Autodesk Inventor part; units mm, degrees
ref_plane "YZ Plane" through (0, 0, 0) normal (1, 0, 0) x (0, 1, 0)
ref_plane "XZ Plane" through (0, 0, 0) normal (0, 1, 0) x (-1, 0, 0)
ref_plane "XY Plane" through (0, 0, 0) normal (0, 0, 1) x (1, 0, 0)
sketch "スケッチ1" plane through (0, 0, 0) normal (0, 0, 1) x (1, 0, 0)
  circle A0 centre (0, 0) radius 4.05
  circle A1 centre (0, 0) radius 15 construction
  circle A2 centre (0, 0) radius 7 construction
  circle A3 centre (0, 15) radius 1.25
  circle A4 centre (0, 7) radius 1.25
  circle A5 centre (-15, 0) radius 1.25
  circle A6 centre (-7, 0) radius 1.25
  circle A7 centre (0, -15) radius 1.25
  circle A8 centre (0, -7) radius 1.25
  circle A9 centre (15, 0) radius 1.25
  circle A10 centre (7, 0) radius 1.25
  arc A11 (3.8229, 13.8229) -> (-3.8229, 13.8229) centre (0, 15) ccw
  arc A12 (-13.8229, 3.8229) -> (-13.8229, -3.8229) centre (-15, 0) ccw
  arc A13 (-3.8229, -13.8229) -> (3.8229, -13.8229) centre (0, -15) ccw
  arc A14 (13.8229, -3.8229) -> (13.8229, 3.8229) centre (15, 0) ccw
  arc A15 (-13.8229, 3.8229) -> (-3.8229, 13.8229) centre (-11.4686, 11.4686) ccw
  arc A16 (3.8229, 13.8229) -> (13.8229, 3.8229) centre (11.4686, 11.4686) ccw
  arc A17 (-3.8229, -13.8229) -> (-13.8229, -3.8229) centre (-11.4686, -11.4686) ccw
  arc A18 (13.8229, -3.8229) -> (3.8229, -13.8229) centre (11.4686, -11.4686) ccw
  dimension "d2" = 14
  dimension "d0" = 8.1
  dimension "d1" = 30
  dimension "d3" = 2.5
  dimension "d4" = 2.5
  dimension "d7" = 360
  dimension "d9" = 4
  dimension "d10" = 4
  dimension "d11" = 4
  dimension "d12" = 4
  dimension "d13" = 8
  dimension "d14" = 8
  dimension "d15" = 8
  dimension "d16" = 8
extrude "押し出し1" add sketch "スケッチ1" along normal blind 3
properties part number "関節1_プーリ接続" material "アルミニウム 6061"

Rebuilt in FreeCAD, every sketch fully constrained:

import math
import FreeCAD as App
import Part
import Sketcher
Q = App.Units.Quantity

doc = App.newDocument("Part")
body = doc.addObject("PartDesign::Body", "Body")

sketch1 = body.newObject("Sketcher::SketchObject", "Sketch")
sketch1.AttachmentSupport = (doc.getObject("XY_Plane"), [""])
sketch1.MapMode = "FlatFace"
sketch1.addGeometry([
    Part.ArcOfCircle(Part.Circle(App.Vector(11.5, 11.5, 0), App.Vector(0, 0, 1), 8), math.radians(163), math.radians(287)),
    Part.ArcOfCircle(Part.Circle(App.Vector(0, 15, 0), App.Vector(0, 0, 1), 4), math.radians(-17), math.radians(197)),
    Part.ArcOfCircle(Part.Circle(App.Vector(-11.5, 11.5, 0), App.Vector(0, 0, 1), 8), math.radians(-107), math.radians(17)),
    Part.ArcOfCircle(Part.Circle(App.Vector(-15, 0, 0), App.Vector(0, 0, 1), 4), math.radians(73), math.radians(287)),
    Part.ArcOfCircle(Part.Circle(App.Vector(-11.5, -11.5, 0), App.Vector(0, 0, 1), 8), math.radians(-17), math.radians(107)),
    Part.ArcOfCircle(Part.Circle(App.Vector(0, -15, 0), App.Vector(0, 0, 1), 4), math.radians(163), math.radians(377)),
    Part.ArcOfCircle(Part.Circle(App.Vector(11.5, -11.5, 0), App.Vector(0, 0, 1), 8), math.radians(73), math.radians(197)),
    Part.ArcOfCircle(Part.Circle(App.Vector(15, 0, 0), App.Vector(0, 0, 1), 4), math.radians(-107), math.radians(107)),
    Part.Circle(App.Vector(0, -15, 0), App.Vector(0, 0, 1), 1.2),
    Part.Circle(App.Vector(-15, 0, 0), App.Vector(0, 0, 1), 1.2),
    Part.Circle(App.Vector(0, -7, 0), App.Vector(0, 0, 1), 1.2),
    Part.Circle(App.Vector(-7, 0, 0), App.Vector(0, 0, 1), 1.2),
    Part.Circle(App.Vector(0, 0, 0), App.Vector(0, 0, 1), 4),
    Part.Circle(App.Vector(7, 0, 0), App.Vector(0, 0, 1), 1.2),
    Part.Circle(App.Vector(15, 0, 0), App.Vector(0, 0, 1), 1.2),
    Part.Circle(App.Vector(0, 7, 0), App.Vector(0, 0, 1), 1.2),
    Part.Circle(App.Vector(0, 15, 0), App.Vector(0, 0, 1), 1.2),
], False)
sketch1.addConstraint([
    Sketcher.Constraint("Tangent", 0, 1, 1, 1),
    Sketcher.Constraint("Tangent", 1, 2, 2, 2),
    Sketcher.Constraint("Tangent", 2, 1, 3, 1),
    Sketcher.Constraint("Tangent", 3, 2, 4, 2),
    Sketcher.Constraint("Tangent", 4, 1, 5, 1),
    Sketcher.Constraint("Tangent", 5, 2, 6, 2),
    Sketcher.Constraint("Tangent", 6, 1, 7, 1),
    Sketcher.Constraint("Tangent", 7, 2, 0, 2),
    Sketcher.Constraint("Coincident", 12, 3, -1, 1),
    Sketcher.Constraint("Coincident", 8, 3, 5, 3),
    Sketcher.Constraint("Coincident", 9, 3, 3, 3),
    Sketcher.Constraint("Coincident", 14, 3, 7, 3),
    Sketcher.Constraint("Coincident", 16, 3, 1, 3),
    Sketcher.Constraint("Equal", 0, 2),
    Sketcher.Constraint("Equal", 1, 3),
    Sketcher.Constraint("Equal", 2, 4),
    Sketcher.Constraint("Equal", 3, 5),
    Sketcher.Constraint("Equal", 4, 6),
    Sketcher.Constraint("Equal", 5, 7),
    Sketcher.Constraint("Equal", 8, 9),
    Sketcher.Constraint("Equal", 9, 10),
    Sketcher.Constraint("Equal", 10, 11),
    Sketcher.Constraint("Equal", 11, 13),
    Sketcher.Constraint("Equal", 13, 14),
    Sketcher.Constraint("Equal", 14, 15),
    Sketcher.Constraint("Equal", 15, 16),
    Sketcher.Constraint("Symmetric", 0, 3, 4, 3, -1, 1),
    Sketcher.Constraint("Symmetric", 2, 3, 6, 3, -1, 1),
    Sketcher.Constraint("Symmetric", 11, 3, 13, 3, -1, 1),
    Sketcher.Constraint("Symmetric", 10, 3, 15, 3, -1, 1),
    Sketcher.Constraint("Symmetric", 0, 3, 2, 3, -2),
    Sketcher.Constraint("PointOnObject", 10, 3, -2),
    Sketcher.Constraint("PointOnObject", 11, 3, -1),
    Sketcher.Constraint("Radius", 0, Q("8 mm")),
    Sketcher.Constraint("Radius", 1, Q("4 mm")),
    Sketcher.Constraint("Diameter", 8, Q("2.5 mm")),
    Sketcher.Constraint("Diameter", 12, Q("8.1 mm")),
    Sketcher.Constraint("DistanceY", 5, 3, 1, 3, Q("30 mm")),
    Sketcher.Constraint("DistanceY", 5, 3, 10, 3, Q("8 mm")),
    Sketcher.Constraint("DistanceX", 3, 3, 11, 3, Q("8 mm")),
    Sketcher.Constraint("DistanceX", 3, 3, -1, 1, Q("15 mm")),
])
pad1 = body.newObject("PartDesign::Pad", "Pad")
pad1.Profile = sketch1
pad1.Length = 3

doc.recompute()
